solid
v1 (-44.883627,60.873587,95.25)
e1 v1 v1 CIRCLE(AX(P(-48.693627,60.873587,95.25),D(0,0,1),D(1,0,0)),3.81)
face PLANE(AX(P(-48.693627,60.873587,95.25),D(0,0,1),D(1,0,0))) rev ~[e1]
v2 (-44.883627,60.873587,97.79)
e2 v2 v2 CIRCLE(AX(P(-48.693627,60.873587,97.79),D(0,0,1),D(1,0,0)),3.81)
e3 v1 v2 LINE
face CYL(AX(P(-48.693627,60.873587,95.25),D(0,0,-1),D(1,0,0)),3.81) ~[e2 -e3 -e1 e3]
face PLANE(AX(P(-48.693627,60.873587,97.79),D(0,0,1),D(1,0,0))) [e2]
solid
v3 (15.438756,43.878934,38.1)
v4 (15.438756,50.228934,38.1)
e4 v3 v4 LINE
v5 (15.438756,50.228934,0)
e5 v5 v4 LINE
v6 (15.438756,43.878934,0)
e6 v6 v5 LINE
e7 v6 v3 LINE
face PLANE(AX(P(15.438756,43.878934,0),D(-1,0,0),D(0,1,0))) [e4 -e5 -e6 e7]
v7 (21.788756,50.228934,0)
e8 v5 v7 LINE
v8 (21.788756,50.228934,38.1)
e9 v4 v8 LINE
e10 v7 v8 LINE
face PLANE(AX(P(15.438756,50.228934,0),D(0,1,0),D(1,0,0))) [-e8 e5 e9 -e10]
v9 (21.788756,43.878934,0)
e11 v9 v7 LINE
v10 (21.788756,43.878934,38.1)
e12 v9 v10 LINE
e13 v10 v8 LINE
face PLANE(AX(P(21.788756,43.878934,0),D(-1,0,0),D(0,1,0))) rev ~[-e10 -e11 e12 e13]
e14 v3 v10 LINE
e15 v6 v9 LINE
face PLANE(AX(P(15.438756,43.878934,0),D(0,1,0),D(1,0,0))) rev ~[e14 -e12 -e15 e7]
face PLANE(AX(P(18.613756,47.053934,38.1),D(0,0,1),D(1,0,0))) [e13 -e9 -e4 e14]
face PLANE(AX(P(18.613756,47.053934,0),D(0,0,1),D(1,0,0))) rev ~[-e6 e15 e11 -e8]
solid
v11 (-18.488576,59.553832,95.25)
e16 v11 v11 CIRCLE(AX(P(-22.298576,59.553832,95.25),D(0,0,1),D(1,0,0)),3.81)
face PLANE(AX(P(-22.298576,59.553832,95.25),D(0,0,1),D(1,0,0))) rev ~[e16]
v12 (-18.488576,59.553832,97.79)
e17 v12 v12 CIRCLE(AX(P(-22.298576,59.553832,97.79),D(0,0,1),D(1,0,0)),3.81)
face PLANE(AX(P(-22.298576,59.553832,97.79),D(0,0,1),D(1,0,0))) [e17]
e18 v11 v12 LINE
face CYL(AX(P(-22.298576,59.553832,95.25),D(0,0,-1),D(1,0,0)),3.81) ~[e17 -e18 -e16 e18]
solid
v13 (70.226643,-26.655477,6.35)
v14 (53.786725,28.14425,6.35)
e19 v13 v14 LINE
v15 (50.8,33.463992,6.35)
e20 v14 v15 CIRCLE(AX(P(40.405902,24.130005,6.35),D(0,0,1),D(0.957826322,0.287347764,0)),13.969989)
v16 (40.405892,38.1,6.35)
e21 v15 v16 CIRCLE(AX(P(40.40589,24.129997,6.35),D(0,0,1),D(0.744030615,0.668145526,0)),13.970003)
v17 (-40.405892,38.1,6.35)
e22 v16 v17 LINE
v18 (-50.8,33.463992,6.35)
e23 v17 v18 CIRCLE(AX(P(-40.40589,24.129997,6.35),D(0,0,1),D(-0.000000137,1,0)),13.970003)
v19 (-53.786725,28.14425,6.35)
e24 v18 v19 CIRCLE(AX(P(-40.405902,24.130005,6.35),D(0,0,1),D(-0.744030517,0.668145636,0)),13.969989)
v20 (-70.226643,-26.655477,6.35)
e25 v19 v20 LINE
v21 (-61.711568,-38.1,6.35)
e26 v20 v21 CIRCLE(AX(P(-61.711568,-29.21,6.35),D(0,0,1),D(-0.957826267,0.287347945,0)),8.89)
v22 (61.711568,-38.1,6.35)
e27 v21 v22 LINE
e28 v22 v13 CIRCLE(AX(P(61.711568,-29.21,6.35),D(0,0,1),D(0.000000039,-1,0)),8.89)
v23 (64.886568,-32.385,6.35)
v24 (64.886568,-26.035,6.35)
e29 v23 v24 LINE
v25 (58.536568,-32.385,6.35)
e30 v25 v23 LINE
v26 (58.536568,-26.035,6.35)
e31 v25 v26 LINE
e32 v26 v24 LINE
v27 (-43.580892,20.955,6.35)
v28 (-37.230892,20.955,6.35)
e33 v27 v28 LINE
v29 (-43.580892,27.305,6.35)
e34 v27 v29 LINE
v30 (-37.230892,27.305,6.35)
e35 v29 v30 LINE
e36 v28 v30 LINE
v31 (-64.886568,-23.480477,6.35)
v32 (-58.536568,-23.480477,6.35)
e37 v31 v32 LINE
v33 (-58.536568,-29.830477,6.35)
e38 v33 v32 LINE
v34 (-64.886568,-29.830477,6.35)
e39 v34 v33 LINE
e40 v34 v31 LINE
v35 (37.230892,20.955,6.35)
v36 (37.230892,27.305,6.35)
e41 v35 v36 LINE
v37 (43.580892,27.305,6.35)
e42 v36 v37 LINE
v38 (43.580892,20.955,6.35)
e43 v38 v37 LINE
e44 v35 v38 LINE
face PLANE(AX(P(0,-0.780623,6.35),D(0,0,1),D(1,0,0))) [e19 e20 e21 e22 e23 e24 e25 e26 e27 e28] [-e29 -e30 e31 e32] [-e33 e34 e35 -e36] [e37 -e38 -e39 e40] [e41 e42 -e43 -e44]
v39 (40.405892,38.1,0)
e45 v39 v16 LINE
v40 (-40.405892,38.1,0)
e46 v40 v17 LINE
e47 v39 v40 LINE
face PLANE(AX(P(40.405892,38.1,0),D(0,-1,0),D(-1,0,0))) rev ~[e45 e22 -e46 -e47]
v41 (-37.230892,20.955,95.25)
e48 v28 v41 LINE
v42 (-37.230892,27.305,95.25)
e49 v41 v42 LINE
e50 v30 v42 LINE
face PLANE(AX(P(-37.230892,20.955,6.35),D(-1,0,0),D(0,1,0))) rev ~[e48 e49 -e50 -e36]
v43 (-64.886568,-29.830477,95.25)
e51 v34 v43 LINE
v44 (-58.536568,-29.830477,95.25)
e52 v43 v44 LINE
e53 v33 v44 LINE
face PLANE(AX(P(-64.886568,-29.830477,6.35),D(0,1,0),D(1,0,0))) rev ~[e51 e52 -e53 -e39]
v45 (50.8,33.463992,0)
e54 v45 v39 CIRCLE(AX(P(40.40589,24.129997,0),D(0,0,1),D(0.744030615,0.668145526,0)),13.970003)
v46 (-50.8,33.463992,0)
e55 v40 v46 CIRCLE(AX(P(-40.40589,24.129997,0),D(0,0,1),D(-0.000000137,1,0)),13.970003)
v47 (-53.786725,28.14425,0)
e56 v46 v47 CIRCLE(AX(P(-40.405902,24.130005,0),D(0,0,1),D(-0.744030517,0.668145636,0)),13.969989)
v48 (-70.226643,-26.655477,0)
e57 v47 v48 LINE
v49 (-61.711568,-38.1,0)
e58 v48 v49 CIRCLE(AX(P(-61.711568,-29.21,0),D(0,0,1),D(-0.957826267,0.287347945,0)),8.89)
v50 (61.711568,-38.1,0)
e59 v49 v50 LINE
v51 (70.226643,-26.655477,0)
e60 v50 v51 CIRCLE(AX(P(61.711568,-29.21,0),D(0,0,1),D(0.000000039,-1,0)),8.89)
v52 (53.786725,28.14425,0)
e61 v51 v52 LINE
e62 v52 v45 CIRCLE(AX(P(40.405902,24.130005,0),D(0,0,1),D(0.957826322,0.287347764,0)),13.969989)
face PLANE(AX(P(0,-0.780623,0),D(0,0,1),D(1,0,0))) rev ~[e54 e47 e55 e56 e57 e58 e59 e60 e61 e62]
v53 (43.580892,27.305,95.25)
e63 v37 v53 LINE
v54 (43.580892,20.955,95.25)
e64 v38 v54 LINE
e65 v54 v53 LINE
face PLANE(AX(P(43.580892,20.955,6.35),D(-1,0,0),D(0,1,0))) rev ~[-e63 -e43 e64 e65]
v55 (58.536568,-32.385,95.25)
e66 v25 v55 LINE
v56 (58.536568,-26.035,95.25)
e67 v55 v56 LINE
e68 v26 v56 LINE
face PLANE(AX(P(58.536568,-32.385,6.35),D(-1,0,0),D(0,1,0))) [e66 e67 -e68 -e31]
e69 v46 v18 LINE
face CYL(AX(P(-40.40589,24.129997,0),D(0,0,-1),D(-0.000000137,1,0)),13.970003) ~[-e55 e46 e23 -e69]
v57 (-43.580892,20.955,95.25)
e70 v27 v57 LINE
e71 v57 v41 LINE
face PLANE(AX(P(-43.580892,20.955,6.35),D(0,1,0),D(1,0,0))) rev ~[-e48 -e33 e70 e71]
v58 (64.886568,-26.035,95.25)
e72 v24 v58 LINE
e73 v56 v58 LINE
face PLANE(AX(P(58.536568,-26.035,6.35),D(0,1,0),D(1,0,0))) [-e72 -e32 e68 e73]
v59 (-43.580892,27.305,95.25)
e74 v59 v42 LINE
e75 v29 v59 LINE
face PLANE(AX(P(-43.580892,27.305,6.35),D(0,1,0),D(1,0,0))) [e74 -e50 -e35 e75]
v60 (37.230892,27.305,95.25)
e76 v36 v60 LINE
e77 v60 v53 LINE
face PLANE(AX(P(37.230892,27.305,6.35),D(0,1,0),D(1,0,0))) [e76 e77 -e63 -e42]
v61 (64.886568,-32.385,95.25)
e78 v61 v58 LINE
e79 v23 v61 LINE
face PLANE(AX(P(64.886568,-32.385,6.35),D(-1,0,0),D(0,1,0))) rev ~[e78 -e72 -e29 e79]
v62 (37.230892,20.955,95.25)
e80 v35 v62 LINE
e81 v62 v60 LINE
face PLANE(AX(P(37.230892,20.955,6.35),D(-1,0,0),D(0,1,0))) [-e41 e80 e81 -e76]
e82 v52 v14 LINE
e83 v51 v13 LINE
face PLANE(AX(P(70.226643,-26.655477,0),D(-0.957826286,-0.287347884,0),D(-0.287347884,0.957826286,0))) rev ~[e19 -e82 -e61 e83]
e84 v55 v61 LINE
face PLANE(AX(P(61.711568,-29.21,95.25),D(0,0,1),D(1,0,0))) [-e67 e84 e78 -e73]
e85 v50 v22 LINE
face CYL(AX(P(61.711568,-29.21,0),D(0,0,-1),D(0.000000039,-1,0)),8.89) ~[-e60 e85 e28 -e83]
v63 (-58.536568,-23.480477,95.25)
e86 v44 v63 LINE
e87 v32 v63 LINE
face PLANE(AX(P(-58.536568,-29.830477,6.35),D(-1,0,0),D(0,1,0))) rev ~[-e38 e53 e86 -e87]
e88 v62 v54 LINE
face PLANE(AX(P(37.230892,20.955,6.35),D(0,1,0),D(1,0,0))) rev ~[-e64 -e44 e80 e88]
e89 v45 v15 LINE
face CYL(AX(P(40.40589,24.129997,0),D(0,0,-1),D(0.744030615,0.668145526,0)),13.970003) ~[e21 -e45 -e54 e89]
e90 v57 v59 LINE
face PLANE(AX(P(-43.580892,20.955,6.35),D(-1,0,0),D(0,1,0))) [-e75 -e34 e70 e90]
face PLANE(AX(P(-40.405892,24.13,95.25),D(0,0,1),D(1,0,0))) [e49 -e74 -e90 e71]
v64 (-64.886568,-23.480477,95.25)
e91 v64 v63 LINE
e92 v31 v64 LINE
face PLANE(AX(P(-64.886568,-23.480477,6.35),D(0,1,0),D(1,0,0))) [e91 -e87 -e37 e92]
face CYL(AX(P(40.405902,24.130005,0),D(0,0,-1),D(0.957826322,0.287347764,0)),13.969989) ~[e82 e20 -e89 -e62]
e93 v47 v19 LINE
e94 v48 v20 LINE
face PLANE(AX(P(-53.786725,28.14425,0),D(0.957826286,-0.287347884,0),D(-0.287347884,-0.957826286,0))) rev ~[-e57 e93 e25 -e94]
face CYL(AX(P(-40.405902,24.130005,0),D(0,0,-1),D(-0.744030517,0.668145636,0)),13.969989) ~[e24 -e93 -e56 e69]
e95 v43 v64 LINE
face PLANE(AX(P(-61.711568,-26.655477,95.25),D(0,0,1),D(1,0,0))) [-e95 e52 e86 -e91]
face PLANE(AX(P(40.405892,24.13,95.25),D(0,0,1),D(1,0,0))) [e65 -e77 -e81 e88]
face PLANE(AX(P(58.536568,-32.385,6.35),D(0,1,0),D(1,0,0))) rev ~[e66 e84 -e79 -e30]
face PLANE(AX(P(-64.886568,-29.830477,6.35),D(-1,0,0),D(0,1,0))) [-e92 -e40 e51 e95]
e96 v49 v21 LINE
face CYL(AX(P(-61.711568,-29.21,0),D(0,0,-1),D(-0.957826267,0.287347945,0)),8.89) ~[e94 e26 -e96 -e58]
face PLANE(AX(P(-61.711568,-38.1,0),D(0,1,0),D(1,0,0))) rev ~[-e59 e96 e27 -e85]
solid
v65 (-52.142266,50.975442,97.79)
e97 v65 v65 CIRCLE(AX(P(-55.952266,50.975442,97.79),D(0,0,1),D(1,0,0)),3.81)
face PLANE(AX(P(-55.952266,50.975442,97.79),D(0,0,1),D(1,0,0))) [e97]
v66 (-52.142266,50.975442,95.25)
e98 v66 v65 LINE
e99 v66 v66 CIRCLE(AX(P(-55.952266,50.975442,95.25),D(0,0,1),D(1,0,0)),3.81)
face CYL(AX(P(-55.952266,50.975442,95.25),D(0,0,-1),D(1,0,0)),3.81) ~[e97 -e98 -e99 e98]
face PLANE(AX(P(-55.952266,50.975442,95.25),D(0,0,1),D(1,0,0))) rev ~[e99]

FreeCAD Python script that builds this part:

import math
import FreeCAD as App
import Part
import Sketcher
Q = App.Units.Quantity

doc = App.newDocument("Part")
body = doc.addObject("PartDesign::Body", "Body")

# Sketch on XY plane
sketch1 = body.newObject("Sketcher::SketchObject", "Sketch")
sketch1.AttachmentSupport = (doc.getObject("XY_Plane"), [""])
sketch1.MapMode = "FlatFace"
sketch1.addGeometry(Part.LineSegment(App.Vector(40, 38, 0), App.Vector(-40, 38, 0)), False)
sketch1.addGeometry(Part.ArcOfCircle(Part.Circle(App.Vector(-40, 24, 0), App.Vector(0, 0, 1), 14), math.radians(90), math.radians(138)), False)
sketch1.addGeometry(Part.ArcOfCircle(Part.Circle(App.Vector(-40, 24, 0), App.Vector(0, 0, 1), 14), math.radians(138), math.radians(163)), False)
sketch1.addGeometry(Part.LineSegment(App.Vector(-54, 28, 0), App.Vector(-70, -27, 0)), False)
sketch1.addGeometry(Part.ArcOfCircle(Part.Circle(App.Vector(-62, -29, 0), App.Vector(0, 0, 1), 9), math.radians(163), math.radians(270)), False)
sketch1.addGeometry(Part.LineSegment(App.Vector(-62, -38, 0), App.Vector(62, -38, 0)), False)
sketch1.addGeometry(Part.ArcOfCircle(Part.Circle(App.Vector(62, -29, 0), App.Vector(0, 0, 1), 9), math.radians(-90), math.radians(17)), False)
sketch1.addGeometry(Part.LineSegment(App.Vector(70, -27, 0), App.Vector(54, 28, 0)), False)
sketch1.addGeometry(Part.ArcOfCircle(Part.Circle(App.Vector(40, 24, 0), App.Vector(0, 0, 1), 14), math.radians(17), math.radians(42)), False)
sketch1.addGeometry(Part.ArcOfCircle(Part.Circle(App.Vector(40, 24, 0), App.Vector(0, 0, 1), 14), math.radians(42), math.radians(90)), False)
sketch1.addConstraint(Sketcher.Constraint("Tangent", 0, 2, 1, 1))
sketch1.addConstraint(Sketcher.Constraint("Tangent", 1, 2, 2, 1))
sketch1.addConstraint(Sketcher.Constraint("Tangent", 2, 2, 3, 1))
sketch1.addConstraint(Sketcher.Constraint("Tangent", 3, 2, 4, 1))
sketch1.addConstraint(Sketcher.Constraint("Tangent", 4, 2, 5, 1))
sketch1.addConstraint(Sketcher.Constraint("Tangent", 5, 2, 6, 1))
sketch1.addConstraint(Sketcher.Constraint("Tangent", 6, 2, 7, 1))
sketch1.addConstraint(Sketcher.Constraint("Tangent", 7, 2, 8, 1))
sketch1.addConstraint(Sketcher.Constraint("Tangent", 8, 2, 9, 1))
sketch1.addConstraint(Sketcher.Constraint("Tangent", 9, 2, 0, 1))
sketch1.addConstraint(Sketcher.Constraint("Horizontal", 0))
sketch1.addConstraint(Sketcher.Constraint("Horizontal", 5))
sketch1.addConstraint(Sketcher.Constraint("Equal", 4, 6))
sketch1.addConstraint(Sketcher.Constraint("Equal", 2, 8))
sketch1.addConstraint(Sketcher.Constraint("Equal", 1, 9))
sketch1.addConstraint(Sketcher.Constraint("Symmetric", 3, 2, 6, 2, -2))
sketch1.addConstraint(Sketcher.Constraint("Horizontal", 1, 2, 8, 2))
sketch1.addConstraint(Sketcher.Constraint("Radius", 1, Q("0.5500001 in")))
sketch1.addConstraint(Sketcher.Constraint("Radius", 4, Q("0.35 in")))
sketch1.addConstraint(Sketcher.Constraint("DistanceX", 1, 2, -1, 1, Q("2 in")))
sketch1.addConstraint(Sketcher.Constraint("DistanceY", -1, 1, 0, 2, Q("1.5 in")))
sketch1.addConstraint(Sketcher.Constraint("DistanceY", 4, 2, -1, 1, Q("1.5 in")))
sketch1.addConstraint(Sketcher.Constraint("DistanceY", -1, 1, 2, 3, Q("0.9500002 in")))
sketch1.addConstraint(Sketcher.Constraint("DistanceX", 0, 2, 0, 1, Q("80.811784 mm")))
sketch1.addConstraint(Sketcher.Constraint("DistanceX", 5, 1, 5, 2, Q("123.423136 mm")))
pad1 = body.newObject("PartDesign::Pad", "Pad")
pad1.Profile = sketch1
pad1.Length = Q("0.25 in")

# Sketch on XY plane
sketch2 = body.newObject("Sketcher::SketchObject", "Sketch001")
sketch2.AttachmentSupport = (doc.getObject("XY_Plane"), [""])
sketch2.MapMode = "FlatFace"
sketch2.AttachmentOffset = App.Placement(App.Vector(0, 0, 0.25 * 25.4), App.Rotation())
sketch2.addGeometry(Part.LineSegment(App.Vector(-44, 27, 0), App.Vector(-44, 21, 0)), False)
sketch2.addGeometry(Part.LineSegment(App.Vector(-44, 21, 0), App.Vector(-37, 21, 0)), False)
sketch2.addGeometry(Part.LineSegment(App.Vector(-37, 21, 0), App.Vector(-37, 27, 0)), False)
sketch2.addGeometry(Part.LineSegment(App.Vector(-37, 27, 0), App.Vector(-44, 27, 0)), False)
sketch2.addGeometry(Part.LineSegment(App.Vector(37, 27, 0), App.Vector(37, 21, 0)), False)
sketch2.addGeometry(Part.LineSegment(App.Vector(37, 21, 0), App.Vector(44, 21, 0)), False)
sketch2.addGeometry(Part.LineSegment(App.Vector(44, 21, 0), App.Vector(44, 27, 0)), False)
sketch2.addGeometry(Part.LineSegment(App.Vector(44, 27, 0), App.Vector(37, 27, 0)), False)
sketch2.addGeometry(Part.LineSegment(App.Vector(-65, -23, 0), App.Vector(-65, -30, 0)), False)
sketch2.addGeometry(Part.LineSegment(App.Vector(-65, -30, 0), App.Vector(-59, -30, 0)), False)
sketch2.addGeometry(Part.LineSegment(App.Vector(-59, -30, 0), App.Vector(-59, -23, 0)), False)
sketch2.addGeometry(Part.LineSegment(App.Vector(-59, -23, 0), App.Vector(-65, -23, 0)), False)
sketch2.addGeometry(Part.LineSegment(App.Vector(59, -26, 0), App.Vector(59, -32, 0)), False)
sketch2.addGeometry(Part.LineSegment(App.Vector(59, -32, 0), App.Vector(65, -32, 0)), False)
sketch2.addGeometry(Part.LineSegment(App.Vector(65, -32, 0), App.Vector(65, -26, 0)), False)
sketch2.addGeometry(Part.LineSegment(App.Vector(65, -26, 0), App.Vector(59, -26, 0)), False)
sketch2.addConstraint(Sketcher.Constraint("Coincident", 0, 2, 1, 1))
sketch2.addConstraint(Sketcher.Constraint("Coincident", 1, 2, 2, 1))
sketch2.addConstraint(Sketcher.Constraint("Coincident", 2, 2, 3, 1))
sketch2.addConstraint(Sketcher.Constraint("Coincident", 3, 2, 0, 1))
sketch2.addConstraint(Sketcher.Constraint("Coincident", 4, 2, 5, 1))
sketch2.addConstraint(Sketcher.Constraint("Coincident", 5, 2, 6, 1))
sketch2.addConstraint(Sketcher.Constraint("Coincident", 6, 2, 7, 1))
sketch2.addConstraint(Sketcher.Constraint("Coincident", 7, 2, 4, 1))
sketch2.addConstraint(Sketcher.Constraint("Coincident", 8, 2, 9, 1))
sketch2.addConstraint(Sketcher.Constraint("Coincident", 9, 2, 10, 1))
sketch2.addConstraint(Sketcher.Constraint("Coincident", 10, 2, 11, 1))
sketch2.addConstraint(Sketcher.Constraint("Coincident", 11, 2, 8, 1))
sketch2.addConstraint(Sketcher.Constraint("Coincident", 12, 2, 13, 1))
sketch2.addConstraint(Sketcher.Constraint("Coincident", 13, 2, 14, 1))
sketch2.addConstraint(Sketcher.Constraint("Coincident", 14, 2, 15, 1))
sketch2.addConstraint(Sketcher.Constraint("Coincident", 15, 2, 12, 1))
sketch2.addConstraint(Sketcher.Constraint("Vertical", 0))
sketch2.addConstraint(Sketcher.Constraint("Horizontal", 1))
sketch2.addConstraint(Sketcher.Constraint("Vertical", 2))
sketch2.addConstraint(Sketcher.Constraint("Horizontal", 3))
sketch2.addConstraint(Sketcher.Constraint("Vertical", 4))
sketch2.addConstraint(Sketcher.Constraint("Horizontal", 5))
sketch2.addConstraint(Sketcher.Constraint("Vertical", 6))
sketch2.addConstraint(Sketcher.Constraint("Horizontal", 7))
sketch2.addConstraint(Sketcher.Constraint("Vertical", 8))
sketch2.addConstraint(Sketcher.Constraint("Horizontal", 9))
sketch2.addConstraint(Sketcher.Constraint("Vertical", 10))
sketch2.addConstraint(Sketcher.Constraint("Horizontal", 11))
sketch2.addConstraint(Sketcher.Constraint("Vertical", 12))
sketch2.addConstraint(Sketcher.Constraint("Horizontal", 13))
sketch2.addConstraint(Sketcher.Constraint("Vertical", 14))
sketch2.addConstraint(Sketcher.Constraint("Horizontal", 15))
sketch2.addConstraint(Sketcher.Constraint("Symmetric", 1, 2, 4, 2, -2))
sketch2.addConstraint(Sketcher.Constraint("Symmetric", 3, 2, 6, 2, -2))
sketch2.addConstraint(Sketcher.Constraint("Equal", 7, 9))
sketch2.addConstraint(Sketcher.Constraint("Equal", 11, 13))
sketch2.addConstraint(Sketcher.Constraint("Equal", 15, 0))
sketch2.addConstraint(Sketcher.Constraint("Equal", 6, 8))
sketch2.addConstraint(Sketcher.Constraint("Equal", 10, 12))
sketch2.addConstraint(Sketcher.Constraint("DistanceX", 1, 1, 1, 2, Q("0.25 in")))
sketch2.addConstraint(Sketcher.Constraint("DistanceY", 12, 2, 5, 2, Q("2.1 in")))
sketch2.addConstraint(Sketcher.Constraint("DistanceY", -1, 1, 0, 2, Q("0.825 in")))
sketch2.addConstraint(Sketcher.Constraint("DistanceX", 1, 2, -1, 1, Q("37.230892 mm")))
sketch2.addConstraint(Sketcher.Constraint("DistanceX", 9, 2, -1, 1, Q("58.536568 mm")))
sketch2.addConstraint(Sketcher.Constraint("DistanceX", -1, 1, 12, 2, Q("58.536568 mm")))
sketch2.addConstraint(Sketcher.Constraint("DistanceY", 8, 2, -1, 1, Q("29.830477 mm")))
pad2 = body.newObject("PartDesign::Pad", "Pad001")
pad2.Profile = sketch2
pad2.Length = Q("3.5 in")
body2 = doc.addObject("PartDesign::Body", "Body001")
body2.AllowCompound = True

# Sketch on XY plane
sketch3 = body2.newObject("Sketcher::SketchObject", "Sketch002")
sketch3.AttachmentSupport = (doc.getObject("XY_Plane001"), [""])
sketch3.MapMode = "FlatFace"
sketch3.AttachmentOffset = App.Placement(App.Vector(0, 0, 3.75 * 25.4), App.Rotation())
sketch3.addGeometry(Part.Circle(App.Vector(-48.7, 60.9, 0), App.Vector(0, 0, 1), 3.8), False)
sketch3.addGeometry(Part.Circle(App.Vector(-56, 51, 0), App.Vector(0, 0, 1), 3.8), False)
sketch3.addGeometry(Part.Circle(App.Vector(-22.3, 59.6, 0), App.Vector(0, 0, 1), 3.8), False)
sketch3.addConstraint(Sketcher.Constraint("Equal", 0, 1))
sketch3.addConstraint(Sketcher.Constraint("Equal", 1, 2))
sketch3.addConstraint(Sketcher.Constraint("Diameter", 0, Q("0.3 in")))
sketch3.addConstraint(Sketcher.Constraint("DistanceX", 1, 3, 0, 3, Q("7.258639 mm")))
sketch3.addConstraint(Sketcher.Constraint("DistanceX", 0, 3, 2, 3, Q("26.395051 mm")))
sketch3.addConstraint(Sketcher.Constraint("DistanceY", 1, 3, 2, 3, Q("8.57839 mm")))
sketch3.addConstraint(Sketcher.Constraint("DistanceX", 0, 3, -1, 1, Q("48.693627 mm")))
sketch3.addConstraint(Sketcher.Constraint("DistanceY", -1, 1, 0, 3, Q("60.873587 mm")))
sketch3.addConstraint(Sketcher.Constraint("DistanceY", -1, 1, 1, 3, Q("50.975442 mm")))
pad3 = body2.newObject("PartDesign::Pad", "Pad002")
pad3.Profile = sketch3
pad3.Length = Q("0.1 in")
body3 = doc.addObject("PartDesign::Body", "Body002")

# Sketch on XY plane
sketch4 = body3.newObject("Sketcher::SketchObject", "Sketch003")
sketch4.AttachmentSupport = (doc.getObject("XY_Plane002"), [""])
sketch4.MapMode = "FlatFace"
sketch4.addGeometry(Part.LineSegment(App.Vector(15, 50, 0), App.Vector(15, 44, 0)), False)
sketch4.addGeometry(Part.LineSegment(App.Vector(15, 44, 0), App.Vector(22, 44, 0)), False)
sketch4.addGeometry(Part.LineSegment(App.Vector(22, 44, 0), App.Vector(22, 50, 0)), False)
sketch4.addGeometry(Part.LineSegment(App.Vector(22, 50, 0), App.Vector(15, 50, 0)), False)
sketch4.addConstraint(Sketcher.Constraint("Coincident", 0, 2, 1, 1))
sketch4.addConstraint(Sketcher.Constraint("Coincident", 1, 2, 2, 1))
sketch4.addConstraint(Sketcher.Constraint("Coincident", 2, 2, 3, 1))
sketch4.addConstraint(Sketcher.Constraint("Coincident", 3, 2, 0, 1))
sketch4.addConstraint(Sketcher.Constraint("Vertical", 0))
sketch4.addConstraint(Sketcher.Constraint("Horizontal", 1))
sketch4.addConstraint(Sketcher.Constraint("Vertical", 2))
sketch4.addConstraint(Sketcher.Constraint("Horizontal", 3))
sketch4.addConstraint(Sketcher.Constraint("Equal", 3, 0))
sketch4.addConstraint(Sketcher.Constraint("DistanceX", 1, 1, 1, 2, Q("0.25 in")))
sketch4.addConstraint(Sketcher.Constraint("DistanceX", -1, 1, 0, 2, Q("15.438756 mm")))
sketch4.addConstraint(Sketcher.Constraint("DistanceY", -1, 1, 0, 2, Q("43.878934 mm")))
pad4 = body3.newObject("PartDesign::Pad", "Pad003")
pad4.Profile = sketch4
pad4.Length = Q("1.5 in")

doc.recompute()
